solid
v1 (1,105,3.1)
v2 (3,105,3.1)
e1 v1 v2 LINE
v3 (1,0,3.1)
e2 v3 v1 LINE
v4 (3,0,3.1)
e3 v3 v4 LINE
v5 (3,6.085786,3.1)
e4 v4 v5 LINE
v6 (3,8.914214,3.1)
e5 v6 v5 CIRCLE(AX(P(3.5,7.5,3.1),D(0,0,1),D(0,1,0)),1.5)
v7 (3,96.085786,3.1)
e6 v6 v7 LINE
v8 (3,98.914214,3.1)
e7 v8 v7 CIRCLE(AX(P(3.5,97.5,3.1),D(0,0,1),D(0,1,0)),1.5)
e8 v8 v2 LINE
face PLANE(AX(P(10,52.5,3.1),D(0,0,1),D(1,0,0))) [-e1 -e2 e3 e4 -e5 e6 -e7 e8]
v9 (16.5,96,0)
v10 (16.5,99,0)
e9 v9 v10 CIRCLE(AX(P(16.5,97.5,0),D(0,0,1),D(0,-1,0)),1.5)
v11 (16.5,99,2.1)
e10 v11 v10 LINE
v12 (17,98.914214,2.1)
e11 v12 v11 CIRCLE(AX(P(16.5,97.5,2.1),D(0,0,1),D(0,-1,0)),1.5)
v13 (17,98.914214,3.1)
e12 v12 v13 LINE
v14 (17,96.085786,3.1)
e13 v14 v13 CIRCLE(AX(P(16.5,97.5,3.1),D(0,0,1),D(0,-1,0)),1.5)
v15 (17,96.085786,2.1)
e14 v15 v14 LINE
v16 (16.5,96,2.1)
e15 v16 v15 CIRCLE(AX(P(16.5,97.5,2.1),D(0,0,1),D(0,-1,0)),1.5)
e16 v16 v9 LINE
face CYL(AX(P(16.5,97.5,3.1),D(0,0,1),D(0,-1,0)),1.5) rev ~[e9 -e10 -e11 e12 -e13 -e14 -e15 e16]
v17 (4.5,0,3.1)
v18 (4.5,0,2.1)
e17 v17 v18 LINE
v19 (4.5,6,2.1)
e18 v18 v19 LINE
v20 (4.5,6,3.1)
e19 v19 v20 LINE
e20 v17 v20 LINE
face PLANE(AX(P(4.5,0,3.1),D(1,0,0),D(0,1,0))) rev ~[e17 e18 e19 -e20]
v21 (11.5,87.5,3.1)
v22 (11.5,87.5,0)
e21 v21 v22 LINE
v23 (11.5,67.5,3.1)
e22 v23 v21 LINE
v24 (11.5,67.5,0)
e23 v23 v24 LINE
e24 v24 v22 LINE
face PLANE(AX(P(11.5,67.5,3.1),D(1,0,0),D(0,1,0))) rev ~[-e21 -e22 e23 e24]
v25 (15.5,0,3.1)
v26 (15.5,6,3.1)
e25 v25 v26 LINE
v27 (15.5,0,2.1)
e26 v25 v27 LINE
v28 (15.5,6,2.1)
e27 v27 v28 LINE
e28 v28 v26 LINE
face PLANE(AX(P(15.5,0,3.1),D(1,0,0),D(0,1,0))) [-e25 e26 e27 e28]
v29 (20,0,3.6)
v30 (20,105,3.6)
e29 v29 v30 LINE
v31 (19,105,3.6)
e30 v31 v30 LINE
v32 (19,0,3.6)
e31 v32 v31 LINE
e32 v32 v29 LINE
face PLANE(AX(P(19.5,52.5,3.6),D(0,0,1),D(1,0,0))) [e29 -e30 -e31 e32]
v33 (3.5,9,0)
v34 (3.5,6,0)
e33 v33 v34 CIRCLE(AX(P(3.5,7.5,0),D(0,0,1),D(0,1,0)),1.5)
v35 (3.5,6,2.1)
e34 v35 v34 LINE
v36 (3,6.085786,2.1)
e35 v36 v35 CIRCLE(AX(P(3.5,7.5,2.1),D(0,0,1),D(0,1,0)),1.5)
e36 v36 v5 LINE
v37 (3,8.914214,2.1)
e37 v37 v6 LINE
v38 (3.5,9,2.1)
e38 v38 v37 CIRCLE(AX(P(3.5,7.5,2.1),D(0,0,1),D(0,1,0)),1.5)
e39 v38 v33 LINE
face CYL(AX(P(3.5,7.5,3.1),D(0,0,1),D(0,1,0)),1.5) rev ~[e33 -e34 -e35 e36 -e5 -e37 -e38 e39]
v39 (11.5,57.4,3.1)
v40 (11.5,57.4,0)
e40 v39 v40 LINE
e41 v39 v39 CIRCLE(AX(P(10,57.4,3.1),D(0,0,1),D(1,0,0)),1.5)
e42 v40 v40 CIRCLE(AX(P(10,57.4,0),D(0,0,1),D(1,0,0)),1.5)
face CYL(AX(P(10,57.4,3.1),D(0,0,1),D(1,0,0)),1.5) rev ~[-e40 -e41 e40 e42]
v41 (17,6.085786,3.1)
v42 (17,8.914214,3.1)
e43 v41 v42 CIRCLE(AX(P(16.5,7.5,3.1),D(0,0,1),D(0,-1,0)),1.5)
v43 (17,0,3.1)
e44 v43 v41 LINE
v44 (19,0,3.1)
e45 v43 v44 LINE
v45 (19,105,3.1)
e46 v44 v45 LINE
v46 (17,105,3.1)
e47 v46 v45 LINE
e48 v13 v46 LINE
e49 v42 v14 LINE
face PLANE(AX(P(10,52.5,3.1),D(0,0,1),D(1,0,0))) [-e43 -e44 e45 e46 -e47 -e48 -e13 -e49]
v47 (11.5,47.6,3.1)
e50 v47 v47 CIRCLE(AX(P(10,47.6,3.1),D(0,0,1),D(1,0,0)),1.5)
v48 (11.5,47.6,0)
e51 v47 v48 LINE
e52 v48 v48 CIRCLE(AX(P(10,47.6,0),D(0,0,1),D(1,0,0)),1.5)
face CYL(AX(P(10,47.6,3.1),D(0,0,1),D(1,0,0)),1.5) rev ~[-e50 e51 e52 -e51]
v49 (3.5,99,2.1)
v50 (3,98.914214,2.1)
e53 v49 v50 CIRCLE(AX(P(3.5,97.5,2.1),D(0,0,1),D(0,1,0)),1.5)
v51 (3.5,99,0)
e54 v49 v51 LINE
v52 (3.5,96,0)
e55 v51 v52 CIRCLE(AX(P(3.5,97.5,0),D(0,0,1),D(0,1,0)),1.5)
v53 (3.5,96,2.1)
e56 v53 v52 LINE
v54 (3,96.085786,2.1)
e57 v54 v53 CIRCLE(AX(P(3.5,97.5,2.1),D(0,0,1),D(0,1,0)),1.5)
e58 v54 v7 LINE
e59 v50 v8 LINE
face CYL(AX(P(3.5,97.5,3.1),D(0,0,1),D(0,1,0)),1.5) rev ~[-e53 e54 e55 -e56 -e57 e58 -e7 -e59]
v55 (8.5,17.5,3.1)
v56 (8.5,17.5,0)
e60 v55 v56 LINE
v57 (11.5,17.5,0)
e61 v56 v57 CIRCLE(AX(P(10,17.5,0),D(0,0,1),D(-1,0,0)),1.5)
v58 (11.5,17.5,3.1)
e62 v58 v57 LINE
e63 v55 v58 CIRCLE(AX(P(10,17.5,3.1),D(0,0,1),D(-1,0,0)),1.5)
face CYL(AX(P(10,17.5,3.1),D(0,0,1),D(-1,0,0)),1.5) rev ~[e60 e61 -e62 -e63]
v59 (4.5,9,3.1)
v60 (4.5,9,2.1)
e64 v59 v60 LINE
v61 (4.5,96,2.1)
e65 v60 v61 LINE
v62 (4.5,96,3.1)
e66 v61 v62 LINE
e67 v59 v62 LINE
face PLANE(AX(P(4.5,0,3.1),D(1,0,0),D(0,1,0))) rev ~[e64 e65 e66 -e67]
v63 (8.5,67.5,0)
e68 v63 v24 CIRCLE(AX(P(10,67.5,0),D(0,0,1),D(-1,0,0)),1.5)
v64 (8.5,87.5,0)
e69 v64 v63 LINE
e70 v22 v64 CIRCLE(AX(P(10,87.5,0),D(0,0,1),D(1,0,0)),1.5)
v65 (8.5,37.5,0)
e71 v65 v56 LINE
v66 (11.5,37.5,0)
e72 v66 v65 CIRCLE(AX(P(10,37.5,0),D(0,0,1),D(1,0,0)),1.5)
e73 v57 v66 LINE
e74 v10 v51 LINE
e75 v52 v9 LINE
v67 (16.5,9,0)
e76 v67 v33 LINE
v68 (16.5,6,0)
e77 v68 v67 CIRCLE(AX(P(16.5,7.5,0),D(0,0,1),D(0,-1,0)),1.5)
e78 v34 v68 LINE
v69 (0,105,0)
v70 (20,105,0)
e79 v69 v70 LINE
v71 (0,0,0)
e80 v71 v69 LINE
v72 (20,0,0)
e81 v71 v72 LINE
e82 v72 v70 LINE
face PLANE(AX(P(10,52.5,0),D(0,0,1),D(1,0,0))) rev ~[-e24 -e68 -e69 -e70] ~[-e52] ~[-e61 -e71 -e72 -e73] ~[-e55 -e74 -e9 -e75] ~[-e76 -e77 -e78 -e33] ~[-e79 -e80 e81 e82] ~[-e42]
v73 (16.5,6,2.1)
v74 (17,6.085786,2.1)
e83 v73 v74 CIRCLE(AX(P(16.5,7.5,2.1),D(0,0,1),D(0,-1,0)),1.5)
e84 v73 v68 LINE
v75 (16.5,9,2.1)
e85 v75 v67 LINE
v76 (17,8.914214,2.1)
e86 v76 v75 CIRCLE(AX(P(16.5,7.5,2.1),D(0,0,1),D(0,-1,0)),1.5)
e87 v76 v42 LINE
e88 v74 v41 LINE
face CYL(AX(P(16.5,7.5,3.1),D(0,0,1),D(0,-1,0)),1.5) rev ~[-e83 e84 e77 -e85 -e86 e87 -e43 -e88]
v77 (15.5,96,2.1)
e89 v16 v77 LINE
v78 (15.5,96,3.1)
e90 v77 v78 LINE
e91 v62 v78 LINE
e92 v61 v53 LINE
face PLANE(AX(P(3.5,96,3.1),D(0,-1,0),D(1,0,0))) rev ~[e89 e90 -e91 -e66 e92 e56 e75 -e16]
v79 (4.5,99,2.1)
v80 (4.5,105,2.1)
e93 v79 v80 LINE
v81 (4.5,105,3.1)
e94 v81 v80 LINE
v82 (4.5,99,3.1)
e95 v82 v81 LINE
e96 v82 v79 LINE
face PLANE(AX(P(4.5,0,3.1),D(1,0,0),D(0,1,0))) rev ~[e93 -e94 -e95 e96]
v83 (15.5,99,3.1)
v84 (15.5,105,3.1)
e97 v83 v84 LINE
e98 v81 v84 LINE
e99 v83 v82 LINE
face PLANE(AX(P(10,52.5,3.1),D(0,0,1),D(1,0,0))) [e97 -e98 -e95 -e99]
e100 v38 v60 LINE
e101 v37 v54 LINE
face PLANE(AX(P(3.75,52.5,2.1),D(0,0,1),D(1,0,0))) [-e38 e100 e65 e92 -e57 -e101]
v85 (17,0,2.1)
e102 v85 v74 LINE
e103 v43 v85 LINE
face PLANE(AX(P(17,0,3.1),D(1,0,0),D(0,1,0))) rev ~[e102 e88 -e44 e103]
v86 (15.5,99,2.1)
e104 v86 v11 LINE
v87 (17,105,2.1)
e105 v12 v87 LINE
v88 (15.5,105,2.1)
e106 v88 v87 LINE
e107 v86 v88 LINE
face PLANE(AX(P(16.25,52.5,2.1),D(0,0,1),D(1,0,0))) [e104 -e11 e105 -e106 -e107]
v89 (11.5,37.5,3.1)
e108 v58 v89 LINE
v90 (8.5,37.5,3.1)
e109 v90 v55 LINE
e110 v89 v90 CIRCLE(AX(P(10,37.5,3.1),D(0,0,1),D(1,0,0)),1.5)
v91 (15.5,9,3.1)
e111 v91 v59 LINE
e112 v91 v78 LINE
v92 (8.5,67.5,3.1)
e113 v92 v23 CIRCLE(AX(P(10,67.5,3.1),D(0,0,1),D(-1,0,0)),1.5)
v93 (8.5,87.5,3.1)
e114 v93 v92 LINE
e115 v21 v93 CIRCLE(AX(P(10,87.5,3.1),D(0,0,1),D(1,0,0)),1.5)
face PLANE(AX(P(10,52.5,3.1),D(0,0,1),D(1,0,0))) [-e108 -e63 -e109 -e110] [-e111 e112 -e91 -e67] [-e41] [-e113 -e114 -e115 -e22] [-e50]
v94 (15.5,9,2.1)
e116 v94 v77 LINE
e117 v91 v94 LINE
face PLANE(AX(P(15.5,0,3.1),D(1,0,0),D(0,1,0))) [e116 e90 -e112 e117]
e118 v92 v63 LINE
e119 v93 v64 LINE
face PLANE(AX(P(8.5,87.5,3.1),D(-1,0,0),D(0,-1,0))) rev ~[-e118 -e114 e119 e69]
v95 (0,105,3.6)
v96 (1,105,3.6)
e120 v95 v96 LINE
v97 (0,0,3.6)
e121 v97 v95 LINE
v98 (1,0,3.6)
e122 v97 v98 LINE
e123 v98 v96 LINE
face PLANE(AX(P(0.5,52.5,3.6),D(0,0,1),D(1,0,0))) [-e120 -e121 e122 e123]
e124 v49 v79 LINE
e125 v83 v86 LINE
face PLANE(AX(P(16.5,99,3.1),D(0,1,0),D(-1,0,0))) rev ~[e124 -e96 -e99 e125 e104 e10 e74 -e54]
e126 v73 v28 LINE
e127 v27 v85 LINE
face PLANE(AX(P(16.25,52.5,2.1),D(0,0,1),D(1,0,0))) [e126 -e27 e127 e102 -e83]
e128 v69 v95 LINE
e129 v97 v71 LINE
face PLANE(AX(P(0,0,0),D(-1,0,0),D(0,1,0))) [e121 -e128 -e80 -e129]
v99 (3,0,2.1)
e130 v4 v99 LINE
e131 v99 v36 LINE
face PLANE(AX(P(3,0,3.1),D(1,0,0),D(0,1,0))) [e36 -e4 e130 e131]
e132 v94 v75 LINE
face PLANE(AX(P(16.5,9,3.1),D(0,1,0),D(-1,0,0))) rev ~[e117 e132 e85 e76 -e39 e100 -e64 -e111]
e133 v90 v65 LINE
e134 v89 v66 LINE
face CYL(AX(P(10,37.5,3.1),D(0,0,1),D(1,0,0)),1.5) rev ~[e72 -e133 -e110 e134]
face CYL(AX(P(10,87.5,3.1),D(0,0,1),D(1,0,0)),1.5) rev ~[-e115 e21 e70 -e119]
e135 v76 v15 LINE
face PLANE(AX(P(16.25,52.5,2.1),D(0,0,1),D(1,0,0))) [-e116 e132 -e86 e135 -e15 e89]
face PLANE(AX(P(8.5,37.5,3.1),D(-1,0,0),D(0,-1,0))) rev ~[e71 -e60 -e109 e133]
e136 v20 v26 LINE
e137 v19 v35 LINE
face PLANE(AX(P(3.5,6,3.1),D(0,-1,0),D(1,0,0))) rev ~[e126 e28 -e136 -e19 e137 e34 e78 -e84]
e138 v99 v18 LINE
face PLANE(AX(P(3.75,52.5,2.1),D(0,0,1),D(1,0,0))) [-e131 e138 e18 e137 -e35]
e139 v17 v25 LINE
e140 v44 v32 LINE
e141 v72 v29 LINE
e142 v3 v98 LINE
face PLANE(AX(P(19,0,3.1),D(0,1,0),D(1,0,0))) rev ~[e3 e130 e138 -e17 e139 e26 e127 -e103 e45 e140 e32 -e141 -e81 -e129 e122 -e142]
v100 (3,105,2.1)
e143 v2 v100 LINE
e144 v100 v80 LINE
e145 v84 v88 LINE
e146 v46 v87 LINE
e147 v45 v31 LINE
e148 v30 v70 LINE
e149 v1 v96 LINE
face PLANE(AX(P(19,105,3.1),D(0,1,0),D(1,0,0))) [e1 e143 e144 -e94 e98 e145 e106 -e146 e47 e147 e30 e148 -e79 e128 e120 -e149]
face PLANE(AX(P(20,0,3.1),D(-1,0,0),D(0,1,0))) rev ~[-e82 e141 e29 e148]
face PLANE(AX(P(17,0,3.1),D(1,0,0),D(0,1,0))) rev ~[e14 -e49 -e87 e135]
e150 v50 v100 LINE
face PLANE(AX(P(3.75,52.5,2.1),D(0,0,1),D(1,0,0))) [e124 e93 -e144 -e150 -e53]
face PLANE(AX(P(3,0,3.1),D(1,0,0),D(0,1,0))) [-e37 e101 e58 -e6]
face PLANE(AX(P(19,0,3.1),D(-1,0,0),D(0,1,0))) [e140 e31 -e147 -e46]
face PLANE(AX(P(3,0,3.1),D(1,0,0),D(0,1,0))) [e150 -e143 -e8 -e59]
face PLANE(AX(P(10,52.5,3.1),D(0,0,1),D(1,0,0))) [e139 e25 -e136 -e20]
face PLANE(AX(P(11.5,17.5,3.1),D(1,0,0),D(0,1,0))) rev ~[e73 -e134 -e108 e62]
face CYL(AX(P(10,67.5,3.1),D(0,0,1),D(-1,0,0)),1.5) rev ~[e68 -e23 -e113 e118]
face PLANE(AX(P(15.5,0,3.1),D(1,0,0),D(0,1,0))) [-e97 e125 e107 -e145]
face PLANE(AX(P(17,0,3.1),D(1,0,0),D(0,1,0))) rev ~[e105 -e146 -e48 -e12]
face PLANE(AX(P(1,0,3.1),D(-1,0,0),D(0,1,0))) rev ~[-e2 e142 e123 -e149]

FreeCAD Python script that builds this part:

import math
import FreeCAD as App
import Part
import Sketcher

V = App.Vector

doc = App.newDocument("Part")
body = doc.addObject("PartDesign::Body", "Body")

# Sketch on XY plane
sketch1 = body.newObject("Sketcher::SketchObject", "Sketch")
sketch1.AttachmentSupport = (doc.getObject("XY_Plane"), [""])
sketch1.MapMode = "FlatFace"
sketch1.addGeometry(Part.LineSegment(V(0, 105, 0), V(0, 0, 0)), False)
sketch1.addGeometry(Part.LineSegment(V(0, 0, 0), V(20, 0, 0)), False)
sketch1.addGeometry(Part.LineSegment(V(20, 0, 0), V(20, 105, 0)), False)
sketch1.addGeometry(Part.LineSegment(V(20, 105, 0), V(0, 105, 0)), False)
sketch1.addConstraint(Sketcher.Constraint("Coincident", 0, 2, 1, 1))
sketch1.addConstraint(Sketcher.Constraint("Coincident", 1, 2, 2, 1))
sketch1.addConstraint(Sketcher.Constraint("Coincident", 2, 2, 3, 1))
sketch1.addConstraint(Sketcher.Constraint("Coincident", 3, 2, 0, 1))
sketch1.addConstraint(Sketcher.Constraint("Vertical", 0))
sketch1.addConstraint(Sketcher.Constraint("Horizontal", 1))
sketch1.addConstraint(Sketcher.Constraint("Vertical", 2))
sketch1.addConstraint(Sketcher.Constraint("Horizontal", 3))
sketch1.addConstraint(Sketcher.Constraint("Coincident", 0, 2, -1, 1))
sketch1.addConstraint(Sketcher.Constraint("DistanceX", 1, 1, 1, 2, 20.0))
sketch1.addConstraint(Sketcher.Constraint("DistanceY", 0, 2, 0, 1, 105.0))
pad1 = body.newObject("PartDesign::Pad", "Pad")
pad1.Profile = sketch1
pad1.Length = 3.1

# Sketch on XY plane
sketch2 = body.newObject("Sketcher::SketchObject", "Sketch001")
sketch2.AttachmentSupport = (doc.getObject("XY_Plane"), [""])
sketch2.MapMode = "FlatFace"
sketch2.AttachmentOffset = App.Placement(V(0, 0, 3.1), App.Rotation())
sketch2.addGeometry(Part.LineSegment(V(19, 105, 0), V(19, 0, 0)), False)
sketch2.addGeometry(Part.LineSegment(V(19, 0, 0), V(20, 0, 0)), False)
sketch2.addGeometry(Part.LineSegment(V(20, 0, 0), V(20, 105, 0)), False)
sketch2.addGeometry(Part.LineSegment(V(20, 105, 0), V(19, 105, 0)), False)
sketch2.addGeometry(Part.LineSegment(V(0, 105, 0), V(0, 0, 0)), False)
sketch2.addGeometry(Part.LineSegment(V(0, 0, 0), V(1, 0, 0)), False)
sketch2.addGeometry(Part.LineSegment(V(1, 0, 0), V(1, 105, 0)), False)
sketch2.addGeometry(Part.LineSegment(V(1, 105, 0), V(0, 105, 0)), False)
sketch2.addConstraint(Sketcher.Constraint("Coincident", 0, 2, 1, 1))
sketch2.addConstraint(Sketcher.Constraint("Coincident", 1, 2, 2, 1))
sketch2.addConstraint(Sketcher.Constraint("Coincident", 2, 2, 3, 1))
sketch2.addConstraint(Sketcher.Constraint("Coincident", 3, 2, 0, 1))
sketch2.addConstraint(Sketcher.Constraint("Coincident", 4, 2, 5, 1))
sketch2.addConstraint(Sketcher.Constraint("Coincident", 5, 2, 6, 1))
sketch2.addConstraint(Sketcher.Constraint("Coincident", 6, 2, 7, 1))
sketch2.addConstraint(Sketcher.Constraint("Coincident", 7, 2, 4, 1))
sketch2.addConstraint(Sketcher.Constraint("Vertical", 0))
sketch2.addConstraint(Sketcher.Constraint("Horizontal", 1))
sketch2.addConstraint(Sketcher.Constraint("Vertical", 2))
sketch2.addConstraint(Sketcher.Constraint("Horizontal", 3))
sketch2.addConstraint(Sketcher.Constraint("Vertical", 4))
sketch2.addConstraint(Sketcher.Constraint("Horizontal", 5))
sketch2.addConstraint(Sketcher.Constraint("Vertical", 6))
sketch2.addConstraint(Sketcher.Constraint("Horizontal", 7))
sketch2.addConstraint(Sketcher.Constraint("Coincident", 4, 2, -1, 1))
sketch2.addConstraint(Sketcher.Constraint("PointOnObject", 0, 2, -1))
sketch2.addConstraint(Sketcher.Constraint("Horizontal", 3, 2, 6, 2))
sketch2.addConstraint(Sketcher.Constraint("Equal", 3, 5))
sketch2.addConstraint(Sketcher.Constraint("DistanceX", 1, 1, 1, 2, 1.0))
sketch2.addConstraint(Sketcher.Constraint("DistanceY", 0, 2, 0, 1, 105.0))
sketch2.addConstraint(Sketcher.Constraint("DistanceX", -1, 1, 0, 2, 19.0))
pad2 = body.newObject("PartDesign::Pad", "Pad001")
pad2.Profile = sketch2
pad2.Length = 0.5

# Sketch on XY plane
sketch3 = body.newObject("Sketcher::SketchObject", "Sketch002")
sketch3.AttachmentSupport = (doc.getObject("XY_Plane"), [""])
sketch3.MapMode = "FlatFace"
sketch3.AttachmentOffset = App.Placement(V(0, 0, 3.1), App.Rotation())
sketch3.addGeometry(Part.LineSegment(V(16.5, 9, 0), V(3.5, 9, 0)), False)
sketch3.addGeometry(Part.ArcOfCircle(Part.Circle(V(3.5, 7.5, 0), V(0, 0, 1), 1.5), math.radians(90), math.radians(270)), False)
sketch3.addGeometry(Part.LineSegment(V(3.5, 6, 0), V(16.5, 6, 0)), False)
sketch3.addGeometry(Part.ArcOfCircle(Part.Circle(V(16.5, 7.5, 0), V(0, 0, 1), 1.5), math.radians(-90), math.radians(90)), False)
sketch3.addGeometry(Part.LineSegment(V(8.5, 37.5, 0), V(8.5, 17.5, 0)), False)
sketch3.addGeometry(Part.ArcOfCircle(Part.Circle(V(10, 17.5, 0), V(0, 0, 1), 1.5), math.radians(180), math.radians(360)), False)
sketch3.addGeometry(Part.LineSegment(V(11.5, 17.5, 0), V(11.5, 37.5, 0)), False)
sketch3.addGeometry(Part.ArcOfCircle(Part.Circle(V(10, 37.5, 0), V(0, 0, 1), 1.5), math.radians(0), math.radians(180)), False)
sketch3.addGeometry(Part.Circle(V(10, 47.6, 0), V(0, 0, 1), 1.5), False)
sketch3.addGeometry(Part.LineSegment(V(16.5, 99, 0), V(3.5, 99, 0)), False)
sketch3.addGeometry(Part.ArcOfCircle(Part.Circle(V(3.5, 97.5, 0), V(0, 0, 1), 1.5), math.radians(90), math.radians(270)), False)
sketch3.addGeometry(Part.LineSegment(V(3.5, 96, 0), V(16.5, 96, 0)), False)
sketch3.addGeometry(Part.ArcOfCircle(Part.Circle(V(16.5, 97.5, 0), V(0, 0, 1), 1.5), math.radians(-90), math.radians(90)), False)
sketch3.addGeometry(Part.LineSegment(V(11.5, 67.5, 0), V(11.5, 87.5, 0)), False)
sketch3.addGeometry(Part.ArcOfCircle(Part.Circle(V(10, 87.5, 0), V(0, 0, 1), 1.5), math.radians(0), math.radians(180)), False)
sketch3.addGeometry(Part.LineSegment(V(8.5, 87.5, 0), V(8.5, 67.5, 0)), False)
sketch3.addGeometry(Part.ArcOfCircle(Part.Circle(V(10, 67.5, 0), V(0, 0, 1), 1.5), math.radians(180), math.radians(360)), False)
sketch3.addGeometry(Part.Circle(V(10, 57.4, 0), V(0, 0, 1), 1.5), False)
sketch3.addConstraint(Sketcher.Constraint("Tangent", 0, 2, 1, 1))
sketch3.addConstraint(Sketcher.Constraint("Tangent", 1, 2, 2, 1))
sketch3.addConstraint(Sketcher.Constraint("Tangent", 2, 2, 3, 1))
sketch3.addConstraint(Sketcher.Constraint("Tangent", 3, 2, 0, 1))
sketch3.addConstraint(Sketcher.Constraint("Tangent", 4, 2, 5, 1))
sketch3.addConstraint(Sketcher.Constraint("Tangent", 5, 2, 6, 1))
sketch3.addConstraint(Sketcher.Constraint("Tangent", 6, 2, 7, 1))
sketch3.addConstraint(Sketcher.Constraint("Tangent", 7, 2, 4, 1))
sketch3.addConstraint(Sketcher.Constraint("Tangent", 9, 2, 10, 1))
sketch3.addConstraint(Sketcher.Constraint("Tangent", 10, 2, 11, 1))
sketch3.addConstraint(Sketcher.Constraint("Tangent", 11, 2, 12, 1))
sketch3.addConstraint(Sketcher.Constraint("Tangent", 12, 2, 9, 1))
sketch3.addConstraint(Sketcher.Constraint("Tangent", 13, 2, 14, 1))
sketch3.addConstraint(Sketcher.Constraint("Tangent", 14, 2, 15, 1))
sketch3.addConstraint(Sketcher.Constraint("Tangent", 15, 2, 16, 1))
sketch3.addConstraint(Sketcher.Constraint("Tangent", 16, 2, 13, 1))
sketch3.addConstraint(Sketcher.Constraint("Horizontal", 0))
sketch3.addConstraint(Sketcher.Constraint("Horizontal", 2))
sketch3.addConstraint(Sketcher.Constraint("Vertical", 4))
sketch3.addConstraint(Sketcher.Constraint("Vertical", 6))
sketch3.addConstraint(Sketcher.Constraint("Horizontal", 9))
sketch3.addConstraint(Sketcher.Constraint("Horizontal", 11))
sketch3.addConstraint(Sketcher.Constraint("Vertical", 13))
sketch3.addConstraint(Sketcher.Constraint("Vertical", 15))
sketch3.addConstraint(Sketcher.Constraint("Equal", 3, 5))
sketch3.addConstraint(Sketcher.Constraint("Equal", 7, 8))
sketch3.addConstraint(Sketcher.Constraint("Equal", 8, 10))
sketch3.addConstraint(Sketcher.Constraint("Equal", 12, 14))
sketch3.addConstraint(Sketcher.Constraint("Equal", 16, 17))
sketch3.addConstraint(Sketcher.Constraint("Vertical", 7, 3, 8, 3))
sketch3.addConstraint(Sketcher.Constraint("Vertical", 1, 3, 10, 3))
sketch3.addConstraint(Sketcher.Constraint("Vertical", 3, 3, 12, 3))
sketch3.addConstraint(Sketcher.Constraint("Vertical", 8, 3, 14, 3))
sketch3.addConstraint(Sketcher.Constraint("Vertical", 16, 3, 17, 3))
sketch3.addConstraint(Sketcher.Constraint("Equal", 6, 13))
sketch3.addConstraint(Sketcher.Constraint("Diameter", 8, 3.0))
sketch3.addConstraint(Sketcher.Constraint("DistanceX", 0, 2, 0, 1, 13.0))
sketch3.addConstraint(Sketcher.Constraint("DistanceY", 4, 2, 4, 1, 20.0))
sketch3.addConstraint(Sketcher.Constraint("DistanceX", -1, 1, 5, 3, 10.0))
sketch3.addConstraint(Sketcher.Constraint("DistanceY", -1, 1, 0, 2, 9.0))
sketch3.addConstraint(Sketcher.Constraint("DistanceY", -1, 1, 9, 2, 99.0))
sketch3.addConstraint(Sketcher.Constraint("DistanceY", 1, 3, 5, 3, 10.0))
sketch3.addConstraint(Sketcher.Constraint("DistanceY", 14, 3, 10, 3, 10.0))
sketch3.addConstraint(Sketcher.Constraint("DistanceX", 0, 2, 4, 2, 5.0))
sketch3.addConstraint(Sketcher.Constraint("DistanceY", -1, 1, 8, 3, 47.6))
sketch3.addConstraint(Sketcher.Constraint("DistanceY", -1, 1, 17, 3, 57.4))
pocket1 = body.newObject("PartDesign::Pocket", "Pocket")
pocket1.Profile = sketch3
pocket1.Type = "ThroughAll"

# Sketch on XY plane
sketch4 = body.newObject("Sketcher::SketchObject", "Sketch003")
sketch4.AttachmentSupport = (doc.getObject("XY_Plane"), [""])
sketch4.MapMode = "FlatFace"
sketch4.AttachmentOffset = App.Placement(V(0, 0, 3.1), App.Rotation())
sketch4.addGeometry(Part.LineSegment(V(3, 105, 0), V(3, 0, 0)), False)
sketch4.addGeometry(Part.LineSegment(V(3, 0, 0), V(4.5, 0, 0)), False)
sketch4.addGeometry(Part.LineSegment(V(4.5, 0, 0), V(4.5, 105, 0)), False)
sketch4.addGeometry(Part.LineSegment(V(4.5, 105, 0), V(3, 105, 0)), False)
sketch4.addGeometry(Part.LineSegment(V(15.5, 105, 0), V(15.5, 0, 0)), False)
sketch4.addGeometry(Part.LineSegment(V(15.5, 0, 0), V(17, 0, 0)), False)
sketch4.addGeometry(Part.LineSegment(V(17, 0, 0), V(17, 105, 0)), False)
sketch4.addGeometry(Part.LineSegment(V(17, 105, 0), V(15.5, 105, 0)), False)
sketch4.addConstraint(Sketcher.Constraint("Coincident", 0, 2, 1, 1))
sketch4.addConstraint(Sketcher.Constraint("Coincident", 1, 2, 2, 1))
sketch4.addConstraint(Sketcher.Constraint("Coincident", 2, 2, 3, 1))
sketch4.addConstraint(Sketcher.Constraint("Coincident", 3, 2, 0, 1))
sketch4.addConstraint(Sketcher.Constraint("Coincident", 4, 2, 5, 1))
sketch4.addConstraint(Sketcher.Constraint("Coincident", 5, 2, 6, 1))
sketch4.addConstraint(Sketcher.Constraint("Coincident", 6, 2, 7, 1))
sketch4.addConstraint(Sketcher.Constraint("Coincident", 7, 2, 4, 1))
sketch4.addConstraint(Sketcher.Constraint("Vertical", 0))
sketch4.addConstraint(Sketcher.Constraint("Horizontal", 1))
sketch4.addConstraint(Sketcher.Constraint("Vertical", 2))
sketch4.addConstraint(Sketcher.Constraint("Horizontal", 3))
sketch4.addConstraint(Sketcher.Constraint("Vertical", 4))
sketch4.addConstraint(Sketcher.Constraint("Horizontal", 5))
sketch4.addConstraint(Sketcher.Constraint("Vertical", 6))
sketch4.addConstraint(Sketcher.Constraint("Horizontal", 7))
sketch4.addConstraint(Sketcher.Constraint("PointOnObject", 0, 2, -1))
sketch4.addConstraint(Sketcher.Constraint("PointOnObject", 4, 2, -1))
sketch4.addConstraint(Sketcher.Constraint("Horizontal", 3, 2, 6, 2))
sketch4.addConstraint(Sketcher.Constraint("Equal", 3, 5))
sketch4.addConstraint(Sketcher.Constraint("DistanceY", 0, 2, 0, 1, 105.0))
sketch4.addConstraint(Sketcher.Constraint("DistanceX", 1, 1, 1, 2, 1.5))
sketch4.addConstraint(Sketcher.Constraint("DistanceX", -1, 1, 0, 2, 3.0))
sketch4.addConstraint(Sketcher.Constraint("DistanceX", -1, 1, 5, 2, 17.0))
pocket2 = body.newObject("PartDesign::Pocket", "Pocket001")
pocket2.Profile = sketch4
pocket2.Length = 1

doc.recompute()
